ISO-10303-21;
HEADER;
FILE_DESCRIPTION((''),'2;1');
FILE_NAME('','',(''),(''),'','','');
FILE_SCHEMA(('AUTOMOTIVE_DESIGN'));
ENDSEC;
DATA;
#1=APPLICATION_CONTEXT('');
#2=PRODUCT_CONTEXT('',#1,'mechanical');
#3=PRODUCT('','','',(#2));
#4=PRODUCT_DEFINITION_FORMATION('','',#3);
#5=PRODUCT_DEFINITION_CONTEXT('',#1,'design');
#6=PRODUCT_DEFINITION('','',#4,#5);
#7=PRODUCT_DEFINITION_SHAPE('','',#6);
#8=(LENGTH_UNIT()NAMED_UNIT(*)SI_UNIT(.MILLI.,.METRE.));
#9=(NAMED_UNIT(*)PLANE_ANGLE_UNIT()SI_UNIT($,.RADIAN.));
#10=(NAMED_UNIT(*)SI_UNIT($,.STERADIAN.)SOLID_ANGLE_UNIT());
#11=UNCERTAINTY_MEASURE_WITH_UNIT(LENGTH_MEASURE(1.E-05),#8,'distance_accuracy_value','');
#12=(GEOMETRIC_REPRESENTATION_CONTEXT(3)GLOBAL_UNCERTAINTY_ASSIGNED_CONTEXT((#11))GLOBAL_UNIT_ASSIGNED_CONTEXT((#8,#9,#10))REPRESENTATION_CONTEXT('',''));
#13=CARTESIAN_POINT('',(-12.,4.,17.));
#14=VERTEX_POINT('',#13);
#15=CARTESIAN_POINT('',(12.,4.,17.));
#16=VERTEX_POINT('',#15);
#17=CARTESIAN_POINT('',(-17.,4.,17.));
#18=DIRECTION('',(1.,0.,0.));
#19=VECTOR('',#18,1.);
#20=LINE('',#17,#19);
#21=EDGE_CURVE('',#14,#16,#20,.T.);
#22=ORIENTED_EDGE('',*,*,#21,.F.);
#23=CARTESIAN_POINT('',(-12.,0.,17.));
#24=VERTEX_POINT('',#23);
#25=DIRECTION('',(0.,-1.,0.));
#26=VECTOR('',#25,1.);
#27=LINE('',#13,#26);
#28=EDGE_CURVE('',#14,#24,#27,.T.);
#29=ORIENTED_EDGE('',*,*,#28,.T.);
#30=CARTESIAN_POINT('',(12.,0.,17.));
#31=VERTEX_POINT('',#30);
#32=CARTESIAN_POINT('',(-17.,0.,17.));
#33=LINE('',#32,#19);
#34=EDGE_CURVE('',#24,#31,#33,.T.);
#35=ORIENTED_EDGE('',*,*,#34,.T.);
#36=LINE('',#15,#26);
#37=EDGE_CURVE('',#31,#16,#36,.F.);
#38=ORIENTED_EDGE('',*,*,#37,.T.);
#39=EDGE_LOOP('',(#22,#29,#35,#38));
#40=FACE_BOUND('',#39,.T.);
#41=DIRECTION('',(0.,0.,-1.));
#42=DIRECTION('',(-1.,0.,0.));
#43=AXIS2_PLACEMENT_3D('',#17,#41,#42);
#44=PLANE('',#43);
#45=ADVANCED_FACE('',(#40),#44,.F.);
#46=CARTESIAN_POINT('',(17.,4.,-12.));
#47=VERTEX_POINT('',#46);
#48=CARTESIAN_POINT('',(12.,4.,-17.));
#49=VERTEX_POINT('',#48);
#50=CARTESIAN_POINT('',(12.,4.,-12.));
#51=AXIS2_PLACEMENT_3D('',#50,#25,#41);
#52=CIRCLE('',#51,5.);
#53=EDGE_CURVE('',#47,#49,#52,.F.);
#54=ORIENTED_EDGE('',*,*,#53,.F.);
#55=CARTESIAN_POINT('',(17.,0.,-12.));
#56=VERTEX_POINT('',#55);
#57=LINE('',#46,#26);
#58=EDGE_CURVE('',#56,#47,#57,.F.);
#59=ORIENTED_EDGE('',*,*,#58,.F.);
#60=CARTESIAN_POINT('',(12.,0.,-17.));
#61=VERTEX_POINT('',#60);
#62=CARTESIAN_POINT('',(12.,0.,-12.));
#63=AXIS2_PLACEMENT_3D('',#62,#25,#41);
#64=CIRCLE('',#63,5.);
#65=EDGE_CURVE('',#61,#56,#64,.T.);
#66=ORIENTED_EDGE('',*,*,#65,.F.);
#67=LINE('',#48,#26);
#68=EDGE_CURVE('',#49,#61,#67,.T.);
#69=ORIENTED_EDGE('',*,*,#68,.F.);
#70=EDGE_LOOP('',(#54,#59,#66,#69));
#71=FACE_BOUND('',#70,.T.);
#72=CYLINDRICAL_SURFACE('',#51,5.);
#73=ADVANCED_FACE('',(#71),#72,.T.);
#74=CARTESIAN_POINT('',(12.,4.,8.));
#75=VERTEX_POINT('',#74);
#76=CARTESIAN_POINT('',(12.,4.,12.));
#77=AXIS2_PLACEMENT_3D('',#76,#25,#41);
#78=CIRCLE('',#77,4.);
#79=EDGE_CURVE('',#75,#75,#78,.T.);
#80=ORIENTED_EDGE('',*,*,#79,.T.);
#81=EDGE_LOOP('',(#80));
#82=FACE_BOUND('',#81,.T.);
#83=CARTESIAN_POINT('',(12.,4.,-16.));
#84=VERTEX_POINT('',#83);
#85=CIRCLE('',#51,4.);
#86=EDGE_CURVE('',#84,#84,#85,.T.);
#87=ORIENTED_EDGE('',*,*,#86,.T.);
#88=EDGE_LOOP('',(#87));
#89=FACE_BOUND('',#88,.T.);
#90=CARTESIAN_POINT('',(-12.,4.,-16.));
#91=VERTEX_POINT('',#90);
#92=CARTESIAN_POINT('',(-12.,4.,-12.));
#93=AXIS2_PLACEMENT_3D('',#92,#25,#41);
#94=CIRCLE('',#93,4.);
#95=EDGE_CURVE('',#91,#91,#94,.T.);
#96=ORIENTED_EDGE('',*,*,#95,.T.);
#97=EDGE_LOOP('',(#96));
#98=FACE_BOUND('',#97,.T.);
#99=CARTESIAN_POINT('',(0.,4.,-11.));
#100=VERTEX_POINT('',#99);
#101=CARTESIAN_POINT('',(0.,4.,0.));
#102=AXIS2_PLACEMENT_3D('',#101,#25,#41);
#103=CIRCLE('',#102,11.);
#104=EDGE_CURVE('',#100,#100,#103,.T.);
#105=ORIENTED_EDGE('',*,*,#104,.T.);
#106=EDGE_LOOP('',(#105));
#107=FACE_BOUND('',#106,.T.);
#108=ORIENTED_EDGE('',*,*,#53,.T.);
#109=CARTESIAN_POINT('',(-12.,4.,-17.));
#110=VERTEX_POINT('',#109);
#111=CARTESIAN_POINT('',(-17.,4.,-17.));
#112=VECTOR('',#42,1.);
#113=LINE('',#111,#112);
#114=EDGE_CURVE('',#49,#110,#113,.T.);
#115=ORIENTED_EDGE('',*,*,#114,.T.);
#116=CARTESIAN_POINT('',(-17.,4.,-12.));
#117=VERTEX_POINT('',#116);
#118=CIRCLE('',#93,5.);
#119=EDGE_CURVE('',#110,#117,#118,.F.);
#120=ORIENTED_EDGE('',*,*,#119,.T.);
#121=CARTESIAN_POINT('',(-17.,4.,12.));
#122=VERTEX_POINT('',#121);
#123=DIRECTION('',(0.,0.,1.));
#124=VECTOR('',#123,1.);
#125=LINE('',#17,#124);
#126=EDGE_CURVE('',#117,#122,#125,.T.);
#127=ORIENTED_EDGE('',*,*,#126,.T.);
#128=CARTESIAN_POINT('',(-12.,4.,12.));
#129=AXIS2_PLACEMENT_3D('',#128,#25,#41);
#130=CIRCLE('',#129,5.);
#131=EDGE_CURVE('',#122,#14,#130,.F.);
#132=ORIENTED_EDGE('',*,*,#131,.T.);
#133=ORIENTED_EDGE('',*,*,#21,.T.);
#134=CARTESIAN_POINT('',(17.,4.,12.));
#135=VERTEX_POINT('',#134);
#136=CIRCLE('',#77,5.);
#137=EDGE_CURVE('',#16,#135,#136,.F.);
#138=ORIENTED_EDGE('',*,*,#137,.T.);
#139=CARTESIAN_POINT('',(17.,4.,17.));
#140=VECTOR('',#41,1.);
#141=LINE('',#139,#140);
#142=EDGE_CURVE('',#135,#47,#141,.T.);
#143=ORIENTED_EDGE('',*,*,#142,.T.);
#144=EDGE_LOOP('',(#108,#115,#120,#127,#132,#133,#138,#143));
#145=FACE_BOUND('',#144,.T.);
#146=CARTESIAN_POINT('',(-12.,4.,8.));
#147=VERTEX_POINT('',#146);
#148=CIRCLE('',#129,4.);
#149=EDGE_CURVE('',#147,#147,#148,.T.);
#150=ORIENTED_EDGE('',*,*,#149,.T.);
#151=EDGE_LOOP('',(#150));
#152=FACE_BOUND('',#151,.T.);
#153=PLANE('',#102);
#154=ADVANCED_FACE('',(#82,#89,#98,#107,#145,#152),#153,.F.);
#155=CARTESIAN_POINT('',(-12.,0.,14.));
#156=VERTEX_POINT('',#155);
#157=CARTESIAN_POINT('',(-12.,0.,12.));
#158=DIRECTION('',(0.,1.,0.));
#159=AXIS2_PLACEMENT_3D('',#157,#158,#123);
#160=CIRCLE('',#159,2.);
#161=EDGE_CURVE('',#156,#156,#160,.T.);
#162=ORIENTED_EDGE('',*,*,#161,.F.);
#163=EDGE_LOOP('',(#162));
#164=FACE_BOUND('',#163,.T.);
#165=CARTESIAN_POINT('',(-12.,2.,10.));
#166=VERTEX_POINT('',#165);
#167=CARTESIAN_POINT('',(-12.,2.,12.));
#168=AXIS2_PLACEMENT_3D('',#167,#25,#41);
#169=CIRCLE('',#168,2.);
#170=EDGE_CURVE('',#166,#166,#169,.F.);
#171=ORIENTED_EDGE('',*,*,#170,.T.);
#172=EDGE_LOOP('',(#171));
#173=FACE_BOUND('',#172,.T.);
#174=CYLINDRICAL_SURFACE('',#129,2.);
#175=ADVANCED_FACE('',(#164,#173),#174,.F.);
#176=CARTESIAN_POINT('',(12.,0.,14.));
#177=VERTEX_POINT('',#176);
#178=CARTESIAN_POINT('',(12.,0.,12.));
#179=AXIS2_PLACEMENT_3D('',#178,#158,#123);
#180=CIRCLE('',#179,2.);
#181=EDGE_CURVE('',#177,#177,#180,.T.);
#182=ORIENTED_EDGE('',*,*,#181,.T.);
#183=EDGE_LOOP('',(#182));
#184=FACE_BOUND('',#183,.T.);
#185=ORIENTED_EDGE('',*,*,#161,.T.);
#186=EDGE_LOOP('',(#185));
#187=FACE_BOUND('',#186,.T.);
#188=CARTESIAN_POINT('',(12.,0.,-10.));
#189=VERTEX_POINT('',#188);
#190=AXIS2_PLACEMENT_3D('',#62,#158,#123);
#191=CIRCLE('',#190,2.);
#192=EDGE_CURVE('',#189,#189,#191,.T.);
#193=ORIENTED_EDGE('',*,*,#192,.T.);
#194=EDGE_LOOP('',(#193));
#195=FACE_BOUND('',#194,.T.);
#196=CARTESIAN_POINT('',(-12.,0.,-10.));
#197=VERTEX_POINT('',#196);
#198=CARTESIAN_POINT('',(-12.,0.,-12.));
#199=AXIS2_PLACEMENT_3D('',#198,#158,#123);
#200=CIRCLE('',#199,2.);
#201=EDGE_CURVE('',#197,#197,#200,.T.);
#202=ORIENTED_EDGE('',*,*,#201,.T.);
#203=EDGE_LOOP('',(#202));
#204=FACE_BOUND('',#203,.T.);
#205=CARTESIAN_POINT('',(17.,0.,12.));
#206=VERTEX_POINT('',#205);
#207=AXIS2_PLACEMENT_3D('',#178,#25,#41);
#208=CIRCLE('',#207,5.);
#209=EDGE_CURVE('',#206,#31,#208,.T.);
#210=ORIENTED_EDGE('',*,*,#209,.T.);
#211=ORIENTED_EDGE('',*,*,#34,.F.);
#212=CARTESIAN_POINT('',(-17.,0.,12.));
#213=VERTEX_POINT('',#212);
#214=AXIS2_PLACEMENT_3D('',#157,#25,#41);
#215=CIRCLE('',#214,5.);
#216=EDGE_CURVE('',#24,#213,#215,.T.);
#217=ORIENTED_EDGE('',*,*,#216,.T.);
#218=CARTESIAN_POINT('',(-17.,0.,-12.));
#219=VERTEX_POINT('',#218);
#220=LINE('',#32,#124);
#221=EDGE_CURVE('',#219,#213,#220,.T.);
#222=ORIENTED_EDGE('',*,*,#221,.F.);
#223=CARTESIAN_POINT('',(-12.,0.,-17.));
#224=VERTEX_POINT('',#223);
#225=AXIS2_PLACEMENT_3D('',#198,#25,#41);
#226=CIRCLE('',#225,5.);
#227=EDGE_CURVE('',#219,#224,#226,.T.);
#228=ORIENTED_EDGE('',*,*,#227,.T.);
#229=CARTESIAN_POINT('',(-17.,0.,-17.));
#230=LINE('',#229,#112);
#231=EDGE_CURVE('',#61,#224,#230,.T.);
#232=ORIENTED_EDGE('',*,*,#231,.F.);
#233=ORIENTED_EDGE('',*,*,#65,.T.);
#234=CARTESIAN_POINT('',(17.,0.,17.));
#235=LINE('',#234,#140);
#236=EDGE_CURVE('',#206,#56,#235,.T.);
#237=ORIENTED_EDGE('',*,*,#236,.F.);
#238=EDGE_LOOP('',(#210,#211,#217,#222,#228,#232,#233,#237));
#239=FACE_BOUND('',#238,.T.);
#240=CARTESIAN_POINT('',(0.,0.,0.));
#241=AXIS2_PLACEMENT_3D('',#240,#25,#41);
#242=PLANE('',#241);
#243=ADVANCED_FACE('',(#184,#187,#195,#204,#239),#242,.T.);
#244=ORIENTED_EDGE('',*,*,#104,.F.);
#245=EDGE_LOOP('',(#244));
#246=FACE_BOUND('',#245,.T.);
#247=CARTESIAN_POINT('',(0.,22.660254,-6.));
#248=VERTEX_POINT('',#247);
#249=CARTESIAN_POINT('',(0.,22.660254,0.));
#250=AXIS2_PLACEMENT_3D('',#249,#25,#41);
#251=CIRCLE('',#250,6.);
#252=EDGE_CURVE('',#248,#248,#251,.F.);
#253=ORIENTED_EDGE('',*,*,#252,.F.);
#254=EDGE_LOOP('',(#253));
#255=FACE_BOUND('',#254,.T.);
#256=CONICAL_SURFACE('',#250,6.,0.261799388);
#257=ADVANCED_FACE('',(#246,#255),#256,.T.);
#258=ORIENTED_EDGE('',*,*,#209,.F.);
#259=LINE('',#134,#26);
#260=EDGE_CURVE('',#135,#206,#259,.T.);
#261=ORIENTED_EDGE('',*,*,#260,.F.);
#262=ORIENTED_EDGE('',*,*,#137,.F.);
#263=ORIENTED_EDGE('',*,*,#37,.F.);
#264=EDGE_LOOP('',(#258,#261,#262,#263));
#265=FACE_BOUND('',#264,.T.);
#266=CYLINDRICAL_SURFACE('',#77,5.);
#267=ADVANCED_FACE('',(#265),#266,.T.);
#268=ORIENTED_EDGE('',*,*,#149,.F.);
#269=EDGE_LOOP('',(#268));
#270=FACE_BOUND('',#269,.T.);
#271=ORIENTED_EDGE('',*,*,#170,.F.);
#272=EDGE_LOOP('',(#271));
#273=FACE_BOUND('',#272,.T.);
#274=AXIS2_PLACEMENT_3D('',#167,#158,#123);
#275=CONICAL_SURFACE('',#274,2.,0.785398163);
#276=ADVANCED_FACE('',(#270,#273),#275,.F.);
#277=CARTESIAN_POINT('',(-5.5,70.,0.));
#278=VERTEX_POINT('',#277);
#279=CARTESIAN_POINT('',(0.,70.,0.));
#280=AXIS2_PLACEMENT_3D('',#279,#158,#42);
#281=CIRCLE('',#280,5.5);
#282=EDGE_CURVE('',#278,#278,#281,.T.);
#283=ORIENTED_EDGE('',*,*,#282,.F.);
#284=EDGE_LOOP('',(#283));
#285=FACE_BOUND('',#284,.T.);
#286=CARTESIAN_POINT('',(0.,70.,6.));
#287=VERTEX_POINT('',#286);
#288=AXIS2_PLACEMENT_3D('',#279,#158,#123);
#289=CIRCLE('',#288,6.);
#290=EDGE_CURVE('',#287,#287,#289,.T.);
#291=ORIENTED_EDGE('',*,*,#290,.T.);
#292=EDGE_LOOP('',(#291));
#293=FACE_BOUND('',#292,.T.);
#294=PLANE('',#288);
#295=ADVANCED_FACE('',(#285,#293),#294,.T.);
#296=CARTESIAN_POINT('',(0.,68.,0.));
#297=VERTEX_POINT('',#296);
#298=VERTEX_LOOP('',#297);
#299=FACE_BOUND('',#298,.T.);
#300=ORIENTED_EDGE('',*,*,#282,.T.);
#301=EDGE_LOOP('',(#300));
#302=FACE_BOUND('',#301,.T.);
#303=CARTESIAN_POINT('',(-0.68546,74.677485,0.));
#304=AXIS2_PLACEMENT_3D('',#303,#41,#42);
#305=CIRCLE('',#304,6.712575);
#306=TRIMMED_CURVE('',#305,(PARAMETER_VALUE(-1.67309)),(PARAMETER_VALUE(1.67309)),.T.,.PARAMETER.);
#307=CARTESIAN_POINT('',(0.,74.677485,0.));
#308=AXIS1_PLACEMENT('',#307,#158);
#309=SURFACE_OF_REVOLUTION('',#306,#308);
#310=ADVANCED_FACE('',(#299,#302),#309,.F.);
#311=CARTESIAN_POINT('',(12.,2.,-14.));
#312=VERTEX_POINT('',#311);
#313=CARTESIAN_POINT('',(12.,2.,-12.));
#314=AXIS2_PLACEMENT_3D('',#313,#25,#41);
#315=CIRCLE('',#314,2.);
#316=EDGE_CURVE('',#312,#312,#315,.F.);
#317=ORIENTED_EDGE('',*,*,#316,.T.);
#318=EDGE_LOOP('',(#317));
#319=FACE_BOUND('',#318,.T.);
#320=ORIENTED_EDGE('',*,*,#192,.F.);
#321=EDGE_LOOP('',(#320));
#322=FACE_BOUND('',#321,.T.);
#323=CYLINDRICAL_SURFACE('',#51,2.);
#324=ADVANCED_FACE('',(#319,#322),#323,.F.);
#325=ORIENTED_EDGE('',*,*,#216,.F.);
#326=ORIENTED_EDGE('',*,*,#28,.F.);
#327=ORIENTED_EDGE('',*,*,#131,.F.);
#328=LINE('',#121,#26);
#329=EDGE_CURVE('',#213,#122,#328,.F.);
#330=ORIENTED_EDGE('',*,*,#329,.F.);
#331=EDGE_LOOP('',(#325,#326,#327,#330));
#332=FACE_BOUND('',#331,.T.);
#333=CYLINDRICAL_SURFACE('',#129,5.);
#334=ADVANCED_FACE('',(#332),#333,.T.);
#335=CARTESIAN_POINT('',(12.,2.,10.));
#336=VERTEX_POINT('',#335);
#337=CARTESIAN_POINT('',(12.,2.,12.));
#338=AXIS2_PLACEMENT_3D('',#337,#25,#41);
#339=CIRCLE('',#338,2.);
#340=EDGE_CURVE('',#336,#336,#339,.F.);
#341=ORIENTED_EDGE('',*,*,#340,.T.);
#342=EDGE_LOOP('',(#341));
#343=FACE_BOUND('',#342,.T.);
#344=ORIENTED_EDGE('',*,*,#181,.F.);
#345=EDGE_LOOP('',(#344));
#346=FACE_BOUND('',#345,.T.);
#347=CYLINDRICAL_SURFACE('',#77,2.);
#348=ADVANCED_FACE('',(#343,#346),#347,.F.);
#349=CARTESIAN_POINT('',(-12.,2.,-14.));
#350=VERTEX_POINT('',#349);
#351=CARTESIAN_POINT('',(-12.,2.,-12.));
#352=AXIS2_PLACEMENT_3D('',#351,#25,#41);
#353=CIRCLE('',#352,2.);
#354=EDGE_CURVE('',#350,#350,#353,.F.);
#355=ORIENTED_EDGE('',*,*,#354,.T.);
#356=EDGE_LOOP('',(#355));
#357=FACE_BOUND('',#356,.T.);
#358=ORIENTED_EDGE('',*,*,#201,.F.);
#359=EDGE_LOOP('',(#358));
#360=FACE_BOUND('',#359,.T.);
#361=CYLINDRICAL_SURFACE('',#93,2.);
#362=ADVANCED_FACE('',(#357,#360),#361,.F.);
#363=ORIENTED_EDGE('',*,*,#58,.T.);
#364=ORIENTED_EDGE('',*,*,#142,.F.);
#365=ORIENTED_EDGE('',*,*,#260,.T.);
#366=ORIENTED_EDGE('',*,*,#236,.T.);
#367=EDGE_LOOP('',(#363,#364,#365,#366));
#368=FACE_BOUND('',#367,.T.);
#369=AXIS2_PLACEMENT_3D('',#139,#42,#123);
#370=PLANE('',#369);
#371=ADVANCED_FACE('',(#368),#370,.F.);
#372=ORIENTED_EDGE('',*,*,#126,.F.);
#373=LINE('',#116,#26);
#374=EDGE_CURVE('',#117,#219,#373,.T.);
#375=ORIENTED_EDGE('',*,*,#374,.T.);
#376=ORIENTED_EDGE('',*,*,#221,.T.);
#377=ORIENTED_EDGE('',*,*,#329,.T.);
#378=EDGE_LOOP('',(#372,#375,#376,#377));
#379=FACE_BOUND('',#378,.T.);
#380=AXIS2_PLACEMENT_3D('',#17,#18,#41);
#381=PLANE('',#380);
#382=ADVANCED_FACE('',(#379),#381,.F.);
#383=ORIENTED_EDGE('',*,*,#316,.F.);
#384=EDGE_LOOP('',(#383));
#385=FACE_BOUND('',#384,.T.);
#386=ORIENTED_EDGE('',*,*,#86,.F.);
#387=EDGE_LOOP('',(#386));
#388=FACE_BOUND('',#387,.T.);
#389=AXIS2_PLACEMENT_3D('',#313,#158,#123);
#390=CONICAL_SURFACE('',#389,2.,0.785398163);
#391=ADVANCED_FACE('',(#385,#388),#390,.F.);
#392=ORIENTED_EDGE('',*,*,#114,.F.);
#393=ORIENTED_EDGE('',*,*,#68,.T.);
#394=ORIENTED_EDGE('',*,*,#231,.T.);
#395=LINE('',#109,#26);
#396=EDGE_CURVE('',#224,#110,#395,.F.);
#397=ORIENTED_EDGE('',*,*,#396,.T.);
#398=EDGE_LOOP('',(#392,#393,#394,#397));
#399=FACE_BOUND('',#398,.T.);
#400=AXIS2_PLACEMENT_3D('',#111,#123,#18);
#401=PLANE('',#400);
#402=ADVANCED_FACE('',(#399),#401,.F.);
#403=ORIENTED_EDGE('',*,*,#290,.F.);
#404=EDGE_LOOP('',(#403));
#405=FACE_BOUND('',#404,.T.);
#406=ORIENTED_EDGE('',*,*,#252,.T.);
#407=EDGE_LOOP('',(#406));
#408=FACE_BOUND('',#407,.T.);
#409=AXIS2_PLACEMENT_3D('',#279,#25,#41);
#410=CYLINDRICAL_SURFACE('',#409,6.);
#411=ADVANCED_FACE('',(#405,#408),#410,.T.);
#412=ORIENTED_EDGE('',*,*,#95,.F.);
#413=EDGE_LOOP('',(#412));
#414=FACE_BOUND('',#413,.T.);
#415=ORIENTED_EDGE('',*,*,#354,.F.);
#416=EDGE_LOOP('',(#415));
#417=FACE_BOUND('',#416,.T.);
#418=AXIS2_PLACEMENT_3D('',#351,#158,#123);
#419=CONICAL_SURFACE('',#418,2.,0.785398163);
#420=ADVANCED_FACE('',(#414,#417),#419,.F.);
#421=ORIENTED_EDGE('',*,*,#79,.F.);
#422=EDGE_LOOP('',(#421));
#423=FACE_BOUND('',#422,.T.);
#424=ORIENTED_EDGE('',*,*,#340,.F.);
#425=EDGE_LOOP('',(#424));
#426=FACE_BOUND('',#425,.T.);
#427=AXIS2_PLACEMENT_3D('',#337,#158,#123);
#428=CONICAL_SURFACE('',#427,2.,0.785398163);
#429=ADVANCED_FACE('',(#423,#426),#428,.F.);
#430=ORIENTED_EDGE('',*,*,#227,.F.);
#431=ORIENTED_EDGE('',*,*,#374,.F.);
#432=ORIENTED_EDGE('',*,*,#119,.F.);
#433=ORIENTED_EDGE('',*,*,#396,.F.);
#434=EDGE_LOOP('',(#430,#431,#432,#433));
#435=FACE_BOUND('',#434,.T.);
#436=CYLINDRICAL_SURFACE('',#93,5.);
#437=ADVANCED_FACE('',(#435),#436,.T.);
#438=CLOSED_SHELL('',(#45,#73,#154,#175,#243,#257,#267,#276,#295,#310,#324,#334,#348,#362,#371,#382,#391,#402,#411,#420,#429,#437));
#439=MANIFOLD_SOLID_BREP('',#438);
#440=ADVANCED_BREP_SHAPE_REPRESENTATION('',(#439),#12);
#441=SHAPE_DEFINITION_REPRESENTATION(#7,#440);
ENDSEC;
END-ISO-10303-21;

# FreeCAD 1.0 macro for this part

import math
import FreeCAD as App
import Part
import Sketcher
Q = App.Units.Quantity


def edges_at(feature, points):
    """Names of the edges that pass closest to the given points."""
    edges = feature.Shape.Edges
    near = lambda p: min(range(len(edges)), key=lambda i: edges[i].distToShape(Part.Vertex(*p))[0])
    return sorted({f"Edge{near(p) + 1}" for p in points})


def add_polygon(sketch, points):
    """Adds a closed chain of lines whose ends are joined by coincident constraints."""
    first, n = sketch.GeometryCount, len(points)
    for a, b in zip(points, points[1:] + points[:1]):
        sketch.addGeometry(Part.LineSegment(App.Vector(*a, 0), App.Vector(*b, 0)), False)
    for i in range(n):
        sketch.addConstraint(Sketcher.Constraint("Coincident", first + i, 2, first + (i + 1) % n, 1))

doc = App.newDocument("Part")
body = doc.addObject("PartDesign::Body", "Body")

# Sketch on XZ plane
sketch1 = body.newObject("Sketcher::SketchObject", "Sketch")
sketch1.AttachmentSupport = (doc.getObject("XZ_Plane"), [""])
sketch1.MapMode = "FlatFace"
add_polygon(sketch1, [(-17, -17), (-17, 17), (17, 17), (17, -17)])  # lines 0-3
sketch1.addGeometry(Part.Circle(App.Vector(-12, 12, 0), App.Vector(0, 0, 1), 2), False)  # 4
sketch1.addGeometry(Part.Circle(App.Vector(12, 12, 0), App.Vector(0, 0, 1), 2), False)  # 5
sketch1.addGeometry(Part.Circle(App.Vector(-12, -12, 0), App.Vector(0, 0, 1), 2), False)  # 6
sketch1.addGeometry(Part.Circle(App.Vector(12, -12, 0), App.Vector(0, 0, 1), 2), False)  # 7
sketch1.addConstraint([
    Sketcher.Constraint("Vertical", 0),
    Sketcher.Constraint("Horizontal", 1),
    Sketcher.Constraint("Vertical", 2),
    Sketcher.Constraint("Horizontal", 3),
    Sketcher.Constraint("Equal", 4, 5),
    Sketcher.Constraint("Equal", 5, 6),
    Sketcher.Constraint("Equal", 6, 7),
    Sketcher.Constraint("Symmetric", 5, 3, 6, 3, -1, 1),
    Sketcher.Constraint("Symmetric", 4, 3, 7, 3, -1, 1),
    Sketcher.Constraint("Symmetric", 0, 2, 2, 2, -1, 1),
    Sketcher.Constraint("Symmetric", 4, 3, 5, 3, -2),
    Sketcher.Constraint("Equal", 3, 0),
    Sketcher.Constraint("Diameter", 4, Q("4 mm")),
    Sketcher.Constraint("DistanceX", 1, 1, 1, 2, Q("34 mm")),
    Sketcher.Constraint("DistanceX", 4, 3, -1, 1, Q("12 mm")),
    Sketcher.Constraint("DistanceY", -1, 1, 4, 3, Q("12 mm")),
])
pad1 = body.newObject("PartDesign::Pad", "Pad")
pad1.Profile = sketch1
pad1.Length = 4
pad1.Reversed = True
doc.recompute()

fillet = body.newObject("PartDesign::Fillet", "Fillet")
fillet.Base = (pad1, edges_at(pad1, [
    (17, 2, 17),
    (-17, 2, 17),
    (-17, 2, -17),
    (17, 2, -17),
]))
fillet.Radius = 5

# Sketch on XZ plane
sketch2 = body.newObject("Sketcher::SketchObject", "Sketch001")
sketch2.AttachmentSupport = (doc.getObject("XZ_Plane"), [""])
sketch2.MapMode = "FlatFace"
sketch2.AttachmentOffset = App.Placement(App.Vector(0, 0, -4), App.Rotation())
sketch2.addGeometry(Part.Circle(App.Vector(0, 0, 0), App.Vector(0, 0, 1), 6), False)
sketch2.addConstraint([
    Sketcher.Constraint("Coincident", 0, 3, -1, 1),
    Sketcher.Constraint("Diameter", 0, Q("12 mm")),
])
pad2 = body.newObject("PartDesign::Pad", "Pad001")
pad2.Profile = sketch2
pad2.Length = 66
pad2.Reversed = True

# Sketch on XY plane
sketch3 = body.newObject("Sketcher::SketchObject", "Sketch002")
sketch3.AttachmentSupport = (doc.getObject("XY_Plane"), [""])
sketch3.MapMode = "FlatFace"
sketch3.addGeometry([
    Part.LineSegment(App.Vector(5.5, 70, 0), App.Vector(0, 70, 0)),
    Part.LineSegment(App.Vector(0, 70, 0), App.Vector(0, 68, 0)),
    Part.ArcOfCircle(Part.Circle(App.Vector(0.7, 74.7, 0), App.Vector(0, 0, 1), 6.7), math.radians(-96), math.radians(-44)),
], False)
sketch3.addConstraint([
    Sketcher.Constraint("Coincident", 0, 2, 1, 1),
    Sketcher.Constraint("Coincident", 1, 2, 2, 1),
    Sketcher.Constraint("Coincident", 2, 2, 0, 1),
    Sketcher.Constraint("Horizontal", 0),
    Sketcher.Constraint("Vertical", 1),
    Sketcher.Constraint("PointOnObject", 0, 2, -2),
    Sketcher.Constraint("DistanceY", 1, 2, 1, 1, Q("2 mm")),
    Sketcher.Constraint("DistanceX", 0, 2, 0, 1, Q("5.5 mm")),
    Sketcher.Constraint("DistanceY", -1, 1, 0, 2, Q("70 mm")),
    Sketcher.Constraint("Radius", 2, Q("6.712575 mm")),
])
groove = body.newObject("PartDesign::Groove", "Groove")
groove.Profile = sketch3
groove.ReferenceAxis = (sketch3, ["V_Axis"])
groove.Angle = 360
doc.recompute()

chamfer = body.newObject("PartDesign::Chamfer", "Chamfer")
chamfer.Base = (groove, edges_at(groove, [(0, 4, -6)]))
chamfer.ChamferType = "Two distances"
chamfer.Size = 5
chamfer.Size2 = 18.660254
doc.recompute()

chamfer2 = body.newObject("PartDesign::Chamfer", "Chamfer001")
chamfer2.Base = (chamfer, edges_at(chamfer, [
    (-12, 4, -14),
    (12, 4, -14),
    (12, 4, 10),
    (-12, 4, 10),
]))
chamfer2.Size = 2

doc.recompute()
